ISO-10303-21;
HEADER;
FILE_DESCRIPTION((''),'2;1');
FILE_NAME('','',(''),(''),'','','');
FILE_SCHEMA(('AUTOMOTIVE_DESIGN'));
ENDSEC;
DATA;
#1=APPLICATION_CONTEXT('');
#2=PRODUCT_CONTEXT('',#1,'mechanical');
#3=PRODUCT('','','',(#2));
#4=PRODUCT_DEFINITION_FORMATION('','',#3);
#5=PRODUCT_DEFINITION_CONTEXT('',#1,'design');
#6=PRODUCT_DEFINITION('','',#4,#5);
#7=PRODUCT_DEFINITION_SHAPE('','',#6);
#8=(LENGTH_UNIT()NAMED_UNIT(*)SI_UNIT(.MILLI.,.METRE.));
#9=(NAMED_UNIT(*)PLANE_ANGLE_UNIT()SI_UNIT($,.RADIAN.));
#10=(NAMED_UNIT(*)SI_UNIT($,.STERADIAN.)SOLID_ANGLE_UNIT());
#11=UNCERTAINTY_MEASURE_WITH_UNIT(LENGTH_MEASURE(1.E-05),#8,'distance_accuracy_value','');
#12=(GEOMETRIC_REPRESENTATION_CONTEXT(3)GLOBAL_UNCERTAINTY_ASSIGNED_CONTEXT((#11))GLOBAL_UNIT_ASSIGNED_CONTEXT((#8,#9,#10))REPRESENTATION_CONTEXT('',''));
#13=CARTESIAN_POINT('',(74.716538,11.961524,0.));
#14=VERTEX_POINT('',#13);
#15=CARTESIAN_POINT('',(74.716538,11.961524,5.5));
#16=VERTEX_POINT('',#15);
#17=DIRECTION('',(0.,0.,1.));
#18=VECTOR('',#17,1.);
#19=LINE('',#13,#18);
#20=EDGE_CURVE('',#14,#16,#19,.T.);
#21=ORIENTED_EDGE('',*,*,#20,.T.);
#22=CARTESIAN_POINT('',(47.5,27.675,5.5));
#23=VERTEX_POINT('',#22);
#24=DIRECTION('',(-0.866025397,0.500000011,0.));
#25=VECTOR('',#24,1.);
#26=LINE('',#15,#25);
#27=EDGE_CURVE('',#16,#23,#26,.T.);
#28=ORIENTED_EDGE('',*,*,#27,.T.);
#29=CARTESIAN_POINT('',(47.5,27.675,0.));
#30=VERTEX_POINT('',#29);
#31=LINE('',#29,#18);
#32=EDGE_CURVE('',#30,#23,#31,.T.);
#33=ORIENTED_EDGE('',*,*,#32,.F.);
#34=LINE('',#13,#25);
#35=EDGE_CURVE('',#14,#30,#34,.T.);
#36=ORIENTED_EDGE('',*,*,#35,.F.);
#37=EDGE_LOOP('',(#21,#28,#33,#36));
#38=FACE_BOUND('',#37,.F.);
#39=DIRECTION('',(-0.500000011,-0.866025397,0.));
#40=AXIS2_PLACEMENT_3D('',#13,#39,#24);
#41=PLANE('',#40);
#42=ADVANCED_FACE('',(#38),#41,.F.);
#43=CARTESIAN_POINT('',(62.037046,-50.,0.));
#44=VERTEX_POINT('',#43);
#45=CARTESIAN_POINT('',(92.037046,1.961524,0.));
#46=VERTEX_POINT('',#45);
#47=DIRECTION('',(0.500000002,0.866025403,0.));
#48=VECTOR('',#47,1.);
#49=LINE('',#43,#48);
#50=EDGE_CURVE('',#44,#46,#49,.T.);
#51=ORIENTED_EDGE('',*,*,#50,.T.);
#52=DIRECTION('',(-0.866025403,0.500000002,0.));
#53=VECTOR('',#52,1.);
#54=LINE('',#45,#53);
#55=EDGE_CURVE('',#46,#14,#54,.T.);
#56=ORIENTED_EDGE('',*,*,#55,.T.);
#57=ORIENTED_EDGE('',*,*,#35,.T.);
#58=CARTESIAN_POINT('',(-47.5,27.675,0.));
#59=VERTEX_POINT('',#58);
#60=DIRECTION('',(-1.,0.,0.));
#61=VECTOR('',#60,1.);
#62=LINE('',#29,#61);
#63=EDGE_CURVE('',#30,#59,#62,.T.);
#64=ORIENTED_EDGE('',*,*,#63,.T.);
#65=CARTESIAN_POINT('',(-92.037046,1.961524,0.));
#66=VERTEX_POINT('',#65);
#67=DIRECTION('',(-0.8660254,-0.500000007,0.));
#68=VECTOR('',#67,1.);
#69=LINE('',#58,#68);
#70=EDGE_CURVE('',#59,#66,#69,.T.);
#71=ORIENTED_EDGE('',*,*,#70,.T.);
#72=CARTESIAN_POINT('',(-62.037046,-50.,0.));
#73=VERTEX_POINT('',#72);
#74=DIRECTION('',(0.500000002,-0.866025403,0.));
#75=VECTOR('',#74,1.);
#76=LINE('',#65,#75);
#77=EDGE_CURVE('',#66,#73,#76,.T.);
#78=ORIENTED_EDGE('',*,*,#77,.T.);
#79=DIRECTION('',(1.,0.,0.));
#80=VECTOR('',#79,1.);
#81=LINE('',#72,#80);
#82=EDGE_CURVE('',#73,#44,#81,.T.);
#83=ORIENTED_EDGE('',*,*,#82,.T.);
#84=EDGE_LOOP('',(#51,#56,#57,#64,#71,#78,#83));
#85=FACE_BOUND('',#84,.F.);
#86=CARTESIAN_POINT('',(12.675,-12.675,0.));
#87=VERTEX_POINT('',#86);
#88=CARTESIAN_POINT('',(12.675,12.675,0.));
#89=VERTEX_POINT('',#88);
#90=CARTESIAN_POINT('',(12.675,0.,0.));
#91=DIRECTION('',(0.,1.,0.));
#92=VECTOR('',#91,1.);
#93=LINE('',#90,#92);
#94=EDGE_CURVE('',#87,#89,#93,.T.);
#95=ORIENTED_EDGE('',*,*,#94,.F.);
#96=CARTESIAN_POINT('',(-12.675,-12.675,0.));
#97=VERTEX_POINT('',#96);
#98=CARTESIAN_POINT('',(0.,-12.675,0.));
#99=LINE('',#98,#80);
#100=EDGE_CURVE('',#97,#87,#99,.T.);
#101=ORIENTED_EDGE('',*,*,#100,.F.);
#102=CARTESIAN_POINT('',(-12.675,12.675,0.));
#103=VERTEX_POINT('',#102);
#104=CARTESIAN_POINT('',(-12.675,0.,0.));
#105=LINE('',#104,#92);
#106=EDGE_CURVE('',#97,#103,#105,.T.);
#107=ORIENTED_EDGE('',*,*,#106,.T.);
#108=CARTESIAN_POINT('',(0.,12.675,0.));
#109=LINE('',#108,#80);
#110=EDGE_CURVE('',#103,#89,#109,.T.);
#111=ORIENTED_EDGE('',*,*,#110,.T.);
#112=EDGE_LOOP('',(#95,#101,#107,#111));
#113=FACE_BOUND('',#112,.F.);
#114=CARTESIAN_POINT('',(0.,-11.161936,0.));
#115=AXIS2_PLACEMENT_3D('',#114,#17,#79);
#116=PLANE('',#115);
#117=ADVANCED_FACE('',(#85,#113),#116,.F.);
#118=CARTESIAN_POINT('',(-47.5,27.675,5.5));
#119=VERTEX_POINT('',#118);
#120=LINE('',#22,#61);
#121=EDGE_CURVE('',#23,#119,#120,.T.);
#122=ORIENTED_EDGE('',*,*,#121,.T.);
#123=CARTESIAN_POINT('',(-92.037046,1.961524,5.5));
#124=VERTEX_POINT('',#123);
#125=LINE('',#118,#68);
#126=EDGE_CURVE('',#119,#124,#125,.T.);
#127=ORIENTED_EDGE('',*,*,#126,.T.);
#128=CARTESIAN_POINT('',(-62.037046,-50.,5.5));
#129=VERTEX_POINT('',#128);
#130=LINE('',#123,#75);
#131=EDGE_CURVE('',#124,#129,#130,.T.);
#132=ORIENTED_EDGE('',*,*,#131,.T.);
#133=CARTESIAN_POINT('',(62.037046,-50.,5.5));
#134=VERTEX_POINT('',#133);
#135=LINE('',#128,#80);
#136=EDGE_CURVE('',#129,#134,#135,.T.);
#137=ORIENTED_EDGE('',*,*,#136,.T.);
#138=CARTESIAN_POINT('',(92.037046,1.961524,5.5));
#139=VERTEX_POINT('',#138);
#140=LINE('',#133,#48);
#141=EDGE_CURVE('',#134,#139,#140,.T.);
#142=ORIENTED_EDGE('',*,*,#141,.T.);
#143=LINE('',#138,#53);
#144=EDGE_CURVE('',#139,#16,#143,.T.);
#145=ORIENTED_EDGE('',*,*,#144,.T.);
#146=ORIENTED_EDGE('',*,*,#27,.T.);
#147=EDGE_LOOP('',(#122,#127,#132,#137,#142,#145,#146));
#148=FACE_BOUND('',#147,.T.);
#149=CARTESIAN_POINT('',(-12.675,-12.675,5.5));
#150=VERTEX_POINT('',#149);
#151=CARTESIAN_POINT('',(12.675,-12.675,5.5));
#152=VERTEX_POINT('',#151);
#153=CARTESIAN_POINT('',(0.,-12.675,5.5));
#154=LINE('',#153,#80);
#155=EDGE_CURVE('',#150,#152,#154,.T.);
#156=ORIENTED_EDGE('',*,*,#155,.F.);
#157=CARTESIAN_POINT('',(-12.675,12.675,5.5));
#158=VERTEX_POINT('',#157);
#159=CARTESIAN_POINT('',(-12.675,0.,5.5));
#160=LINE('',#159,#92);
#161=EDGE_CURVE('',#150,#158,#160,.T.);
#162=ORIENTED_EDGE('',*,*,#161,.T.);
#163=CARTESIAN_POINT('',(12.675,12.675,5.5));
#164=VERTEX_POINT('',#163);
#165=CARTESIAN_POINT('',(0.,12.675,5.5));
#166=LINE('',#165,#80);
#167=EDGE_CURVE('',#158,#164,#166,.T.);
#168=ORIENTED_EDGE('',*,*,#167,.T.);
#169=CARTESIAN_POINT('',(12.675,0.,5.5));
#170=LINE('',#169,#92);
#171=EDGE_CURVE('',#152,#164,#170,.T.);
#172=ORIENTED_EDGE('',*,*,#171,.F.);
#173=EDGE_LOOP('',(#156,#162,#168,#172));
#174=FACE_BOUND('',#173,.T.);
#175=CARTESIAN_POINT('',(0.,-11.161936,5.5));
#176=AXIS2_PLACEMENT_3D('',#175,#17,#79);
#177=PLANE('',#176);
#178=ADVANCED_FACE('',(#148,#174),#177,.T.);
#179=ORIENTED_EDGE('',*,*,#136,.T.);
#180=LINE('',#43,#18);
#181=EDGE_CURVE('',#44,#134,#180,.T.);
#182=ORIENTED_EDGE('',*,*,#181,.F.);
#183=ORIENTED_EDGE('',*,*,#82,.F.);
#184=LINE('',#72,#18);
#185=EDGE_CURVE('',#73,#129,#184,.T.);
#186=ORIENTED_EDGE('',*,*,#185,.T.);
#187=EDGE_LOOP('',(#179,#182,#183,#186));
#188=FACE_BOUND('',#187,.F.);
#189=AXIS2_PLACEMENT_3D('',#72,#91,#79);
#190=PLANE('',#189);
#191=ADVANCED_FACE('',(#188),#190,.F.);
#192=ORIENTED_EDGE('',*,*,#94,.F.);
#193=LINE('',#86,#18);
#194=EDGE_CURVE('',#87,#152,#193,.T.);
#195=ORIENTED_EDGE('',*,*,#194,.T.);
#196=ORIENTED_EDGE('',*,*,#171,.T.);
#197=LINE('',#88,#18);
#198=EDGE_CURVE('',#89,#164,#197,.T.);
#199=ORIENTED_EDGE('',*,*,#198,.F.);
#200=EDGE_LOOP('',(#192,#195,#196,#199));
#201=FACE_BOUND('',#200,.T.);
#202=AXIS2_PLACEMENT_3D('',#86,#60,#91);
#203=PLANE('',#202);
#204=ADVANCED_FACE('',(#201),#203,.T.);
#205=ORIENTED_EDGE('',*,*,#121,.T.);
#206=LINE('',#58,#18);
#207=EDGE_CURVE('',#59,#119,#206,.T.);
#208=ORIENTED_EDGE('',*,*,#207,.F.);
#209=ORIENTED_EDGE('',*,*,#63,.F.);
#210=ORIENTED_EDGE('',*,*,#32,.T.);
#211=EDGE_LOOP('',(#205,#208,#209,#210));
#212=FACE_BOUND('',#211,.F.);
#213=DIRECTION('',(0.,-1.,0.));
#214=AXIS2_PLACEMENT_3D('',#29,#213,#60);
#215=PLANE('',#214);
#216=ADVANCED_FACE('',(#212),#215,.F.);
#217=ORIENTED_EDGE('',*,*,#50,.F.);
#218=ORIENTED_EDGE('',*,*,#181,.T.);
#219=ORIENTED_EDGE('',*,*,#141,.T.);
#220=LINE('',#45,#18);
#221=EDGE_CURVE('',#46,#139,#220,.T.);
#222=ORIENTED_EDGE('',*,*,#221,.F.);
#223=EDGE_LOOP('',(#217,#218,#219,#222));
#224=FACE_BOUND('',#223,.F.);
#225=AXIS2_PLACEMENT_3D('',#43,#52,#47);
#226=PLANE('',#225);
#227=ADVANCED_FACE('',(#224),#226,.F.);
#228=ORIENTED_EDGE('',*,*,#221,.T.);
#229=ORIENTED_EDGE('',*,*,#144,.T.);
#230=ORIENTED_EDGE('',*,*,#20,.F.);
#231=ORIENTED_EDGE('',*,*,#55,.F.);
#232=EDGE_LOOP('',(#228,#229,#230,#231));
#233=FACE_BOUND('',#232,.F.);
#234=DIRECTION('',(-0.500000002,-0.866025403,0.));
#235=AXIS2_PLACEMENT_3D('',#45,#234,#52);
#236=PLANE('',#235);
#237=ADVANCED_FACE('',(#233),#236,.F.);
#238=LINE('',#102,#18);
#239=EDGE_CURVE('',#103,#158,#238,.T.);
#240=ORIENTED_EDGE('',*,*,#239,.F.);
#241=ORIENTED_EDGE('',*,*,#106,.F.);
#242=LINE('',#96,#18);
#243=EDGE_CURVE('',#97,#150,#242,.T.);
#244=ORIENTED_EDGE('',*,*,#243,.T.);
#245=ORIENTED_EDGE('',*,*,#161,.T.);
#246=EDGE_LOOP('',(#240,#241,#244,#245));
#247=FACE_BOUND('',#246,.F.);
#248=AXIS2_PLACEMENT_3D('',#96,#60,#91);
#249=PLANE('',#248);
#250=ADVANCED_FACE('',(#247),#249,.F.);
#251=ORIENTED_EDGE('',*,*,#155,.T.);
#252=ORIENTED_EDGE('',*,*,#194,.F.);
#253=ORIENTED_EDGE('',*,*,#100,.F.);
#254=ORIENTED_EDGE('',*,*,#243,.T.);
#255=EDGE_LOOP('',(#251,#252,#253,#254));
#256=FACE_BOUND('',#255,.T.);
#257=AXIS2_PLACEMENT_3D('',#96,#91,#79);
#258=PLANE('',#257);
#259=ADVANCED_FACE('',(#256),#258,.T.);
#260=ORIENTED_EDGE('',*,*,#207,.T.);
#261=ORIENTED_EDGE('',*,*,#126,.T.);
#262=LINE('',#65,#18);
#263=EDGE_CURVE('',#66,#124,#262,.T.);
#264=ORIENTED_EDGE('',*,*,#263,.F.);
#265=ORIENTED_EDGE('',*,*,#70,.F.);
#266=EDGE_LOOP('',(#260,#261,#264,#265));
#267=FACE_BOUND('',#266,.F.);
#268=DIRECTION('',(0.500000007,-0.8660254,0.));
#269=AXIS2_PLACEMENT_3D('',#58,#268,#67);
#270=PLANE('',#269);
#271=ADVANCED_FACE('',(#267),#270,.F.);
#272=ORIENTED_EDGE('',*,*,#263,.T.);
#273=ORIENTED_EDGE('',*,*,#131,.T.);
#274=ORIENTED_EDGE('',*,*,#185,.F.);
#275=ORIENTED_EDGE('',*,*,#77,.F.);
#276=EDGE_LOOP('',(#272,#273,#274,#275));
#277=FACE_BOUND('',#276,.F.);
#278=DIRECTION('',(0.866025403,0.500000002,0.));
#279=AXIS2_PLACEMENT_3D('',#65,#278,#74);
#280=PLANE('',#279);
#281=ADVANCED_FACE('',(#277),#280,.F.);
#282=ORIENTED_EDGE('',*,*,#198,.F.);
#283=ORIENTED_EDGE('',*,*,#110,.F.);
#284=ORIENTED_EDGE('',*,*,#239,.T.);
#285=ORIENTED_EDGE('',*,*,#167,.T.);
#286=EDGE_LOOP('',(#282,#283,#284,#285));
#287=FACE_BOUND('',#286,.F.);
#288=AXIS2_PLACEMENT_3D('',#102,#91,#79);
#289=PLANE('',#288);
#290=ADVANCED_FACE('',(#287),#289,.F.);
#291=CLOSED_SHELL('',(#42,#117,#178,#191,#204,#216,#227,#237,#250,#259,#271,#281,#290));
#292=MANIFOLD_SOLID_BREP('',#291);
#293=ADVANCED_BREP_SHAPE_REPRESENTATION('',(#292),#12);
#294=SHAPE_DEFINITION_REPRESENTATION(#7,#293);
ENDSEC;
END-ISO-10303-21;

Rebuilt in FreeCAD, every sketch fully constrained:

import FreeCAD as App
import Part
import Sketcher

V = App.Vector
Q = App.Units.Quantity


def add_polygon(sketch, points):
    """Adds a closed chain of lines whose ends are joined by coincident constraints."""
    first, n = sketch.GeometryCount, len(points)
    for a, b in zip(points, points[1:] + points[:1]):
        sketch.addGeometry(Part.LineSegment(App.Vector(*a, 0), App.Vector(*b, 0)), False)
    for i in range(n):
        sketch.addConstraint(Sketcher.Constraint("Coincident", first + i, 2, first + (i + 1) % n, 1))

doc = App.newDocument("Part")
body = doc.addObject("PartDesign::Body", "Body")

# Sketch on XY plane
sketch1 = body.newObject("Sketcher::SketchObject", "Sketch")
sketch1.AttachmentSupport = (doc.getObject("XY_Plane"), [""])
sketch1.MapMode = "FlatFace"
add_polygon(sketch1, [(47.5, 27.675), (-47.5, 27.675), (-92.037046, 1.961524), (-62.037046, -50), (62.037046, -50), (92.037046, 1.961524), (74.716538, 11.961524)])  # lines 0-6
add_polygon(sketch1, [(12.675, -12.675), (-12.675, -12.675), (-12.675, 12.675), (12.675, 12.675)])  # lines 7-10
sketch1.addConstraint(Sketcher.Constraint("Horizontal", 0))
sketch1.addConstraint(Sketcher.Constraint("Horizontal", 3))
sketch1.addConstraint(Sketcher.Constraint("Horizontal", 7))
sketch1.addConstraint(Sketcher.Constraint("Vertical", 8))
sketch1.addConstraint(Sketcher.Constraint("Horizontal", 9))
sketch1.addConstraint(Sketcher.Constraint("Vertical", 10))
sketch1.addConstraint(Sketcher.Constraint("Symmetric", 7, 2, 9, 2, -1, 1))
sketch1.addConstraint(Sketcher.Constraint("Symmetric", 1, 2, 4, 2, -2))
sketch1.addConstraint(Sketcher.Constraint("Perpendicular", 1, 2))
sketch1.addConstraint(Sketcher.Constraint("Perpendicular", 4, 5))
sketch1.addConstraint(Sketcher.Constraint("Parallel", 5, 6))
sketch1.addConstraint(Sketcher.Constraint("Equal", 9, 8))
sketch1.addConstraint(Sketcher.Constraint("Equal", 2, 4))
sketch1.addConstraint(Sketcher.Constraint("DistanceX", 0, 2, 0, 1, 95.0))
sketch1.addConstraint(Sketcher.Constraint("Angle", 1, Q("-150 deg")))
sketch1.addConstraint(Sketcher.Constraint("Distance", 2, 60.0))
sketch1.addConstraint(Sketcher.Constraint("Distance", 5, 20.0))
sketch1.addConstraint(Sketcher.Constraint("DistanceY", 2, 2, -1, 1, 50.0))
sketch1.addConstraint(Sketcher.Constraint("DistanceY", 8, 2, 0, 2, 15.0))
sketch1.addConstraint(Sketcher.Constraint("DistanceX", 7, 2, 7, 1, 25.35))
pad1 = body.newObject("PartDesign::Pad", "Pad")
pad1.Profile = sketch1
pad1.Length = 5.5

doc.recompute()
